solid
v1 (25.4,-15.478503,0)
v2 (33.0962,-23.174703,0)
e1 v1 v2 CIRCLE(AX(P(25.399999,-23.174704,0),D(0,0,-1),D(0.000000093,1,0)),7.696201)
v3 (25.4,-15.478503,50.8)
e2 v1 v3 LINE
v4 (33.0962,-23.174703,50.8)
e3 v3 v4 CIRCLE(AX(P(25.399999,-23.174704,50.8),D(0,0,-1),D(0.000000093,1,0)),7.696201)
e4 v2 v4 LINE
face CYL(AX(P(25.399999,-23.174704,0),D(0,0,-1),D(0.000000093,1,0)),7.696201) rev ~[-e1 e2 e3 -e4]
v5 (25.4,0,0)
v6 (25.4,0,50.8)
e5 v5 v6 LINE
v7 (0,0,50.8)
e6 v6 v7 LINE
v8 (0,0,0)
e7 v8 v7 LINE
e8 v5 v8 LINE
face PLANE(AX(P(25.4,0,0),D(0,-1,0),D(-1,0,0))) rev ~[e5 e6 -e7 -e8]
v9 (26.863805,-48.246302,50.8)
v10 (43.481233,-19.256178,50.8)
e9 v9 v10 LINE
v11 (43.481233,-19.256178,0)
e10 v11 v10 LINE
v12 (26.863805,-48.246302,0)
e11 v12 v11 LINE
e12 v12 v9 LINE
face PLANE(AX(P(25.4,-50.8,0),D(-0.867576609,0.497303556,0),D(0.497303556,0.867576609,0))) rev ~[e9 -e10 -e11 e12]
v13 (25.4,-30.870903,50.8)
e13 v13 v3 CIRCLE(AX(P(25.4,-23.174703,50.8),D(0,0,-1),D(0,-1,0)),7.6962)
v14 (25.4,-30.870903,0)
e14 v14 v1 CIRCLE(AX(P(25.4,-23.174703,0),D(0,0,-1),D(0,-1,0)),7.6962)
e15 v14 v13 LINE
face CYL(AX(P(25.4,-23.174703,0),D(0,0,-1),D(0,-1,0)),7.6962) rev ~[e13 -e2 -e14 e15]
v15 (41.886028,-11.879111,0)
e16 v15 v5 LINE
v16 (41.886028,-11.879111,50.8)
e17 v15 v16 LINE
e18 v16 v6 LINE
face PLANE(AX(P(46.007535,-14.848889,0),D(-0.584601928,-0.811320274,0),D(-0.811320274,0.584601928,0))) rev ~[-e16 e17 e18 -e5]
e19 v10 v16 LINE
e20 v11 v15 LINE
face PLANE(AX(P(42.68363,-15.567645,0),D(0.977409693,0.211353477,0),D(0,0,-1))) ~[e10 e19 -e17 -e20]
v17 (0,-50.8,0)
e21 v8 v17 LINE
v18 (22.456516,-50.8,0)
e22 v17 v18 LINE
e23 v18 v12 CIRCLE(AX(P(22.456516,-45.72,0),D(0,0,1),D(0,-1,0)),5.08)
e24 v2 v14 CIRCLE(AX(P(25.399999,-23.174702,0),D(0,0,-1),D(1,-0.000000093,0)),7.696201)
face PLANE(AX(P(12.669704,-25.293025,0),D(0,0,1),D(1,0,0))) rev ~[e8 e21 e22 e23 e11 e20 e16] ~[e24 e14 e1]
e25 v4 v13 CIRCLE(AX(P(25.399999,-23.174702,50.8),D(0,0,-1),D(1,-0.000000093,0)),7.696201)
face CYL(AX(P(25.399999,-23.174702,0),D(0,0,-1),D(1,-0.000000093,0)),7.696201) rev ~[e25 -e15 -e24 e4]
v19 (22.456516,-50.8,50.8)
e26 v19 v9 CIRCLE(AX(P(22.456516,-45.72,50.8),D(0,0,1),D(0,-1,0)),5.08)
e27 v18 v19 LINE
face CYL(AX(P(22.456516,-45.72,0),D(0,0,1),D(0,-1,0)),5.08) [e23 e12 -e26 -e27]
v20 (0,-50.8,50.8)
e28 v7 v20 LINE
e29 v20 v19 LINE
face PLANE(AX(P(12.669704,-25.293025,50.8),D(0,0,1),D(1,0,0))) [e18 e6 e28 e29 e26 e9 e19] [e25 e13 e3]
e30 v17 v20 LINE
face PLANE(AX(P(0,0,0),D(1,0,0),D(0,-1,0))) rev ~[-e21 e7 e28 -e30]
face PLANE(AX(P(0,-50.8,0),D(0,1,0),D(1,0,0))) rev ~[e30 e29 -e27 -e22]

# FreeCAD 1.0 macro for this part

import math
import FreeCAD as App
import Part
import Sketcher
Q = App.Units.Quantity


def edges_at(feature, points):
    """Names of the edges that pass closest to the given points."""
    edges = feature.Shape.Edges
    near = lambda p: min(range(len(edges)), key=lambda i: edges[i].distToShape(Part.Vertex(*p))[0])
    return sorted({f"Edge{near(p) + 1}" for p in points})


def add_polygon(sketch, points):
    """Adds a closed chain of lines whose ends are joined by coincident constraints."""
    first, n = sketch.GeometryCount, len(points)
    for a, b in zip(points, points[1:] + points[:1]):
        sketch.addGeometry(Part.LineSegment(App.Vector(*a, 0), App.Vector(*b, 0)), False)
    for i in range(n):
        sketch.addConstraint(Sketcher.Constraint("Coincident", first + i, 2, first + (i + 1) % n, 1))

doc = App.newDocument("Part")
body = doc.addObject("PartDesign::Body", "Body")

sketch1 = body.newObject("Sketcher::SketchObject", "Sketch")
sketch1.AttachmentSupport = (doc.getObject("XY_Plane"), [""])
sketch1.MapMode = "FlatFace"
add_polygon(sketch1, [(25.4, 0), (0, 0), (0, -50.8), (25.4, -50.8), (46.007535, -14.848889)])
sketch1.addGeometry(Part.ArcOfCircle(Part.Circle(App.Vector(25.4, -23.174703, 0), App.Vector(0, 0, 1), 7.6962), math.radians(90), math.radians(270)), False)
sketch1.addGeometry(Part.ArcOfCircle(Part.Circle(App.Vector(25.399999, -23.174704, 0), App.Vector(0, 0, 1), 7.696201), math.radians(0.000005), math.radians(89.999995)), False)
sketch1.addGeometry(Part.ArcOfCircle(Part.Circle(App.Vector(25.399999, -23.174702, 0), App.Vector(0, 0, 1), 7.696201), math.radians(-89.999995), math.radians(-0.000005)), False)
sketch1.addConstraint(Sketcher.Constraint("Tangent", 5, 1, 6, 2))
sketch1.addConstraint(Sketcher.Constraint("Tangent", 6, 1, 7, 2))
sketch1.addConstraint(Sketcher.Constraint("Tangent", 7, 1, 5, 2))
sketch1.addConstraint(Sketcher.Constraint("Horizontal", 0))
sketch1.addConstraint(Sketcher.Constraint("Vertical", 1))
sketch1.addConstraint(Sketcher.Constraint("Horizontal", 2))
sketch1.addConstraint(Sketcher.Constraint("Coincident", 0, 2, -1, 1))
sketch1.addConstraint(Sketcher.Constraint("Horizontal", 7, 3, 6, 1))
sketch1.addConstraint(Sketcher.Constraint("Vertical", 7, 3, 2, 2))
sketch1.addConstraint(Sketcher.Constraint("Vertical", 2, 2, 4, 2))
sketch1.addConstraint(Sketcher.Constraint("Vertical", 4, 2, 5, 1))
sketch1.addConstraint(Sketcher.Constraint("Vertical", 5, 1, 7, 1))
sketch1.addConstraint(Sketcher.Constraint("DistanceX", 0, 2, 0, 1, Q("1 in")))
sketch1.addConstraint(Sketcher.Constraint("DistanceY", 1, 2, 1, 1, Q("2 in")))
sketch1.addConstraint(Sketcher.Constraint("Distance", 4, Q("1 in")))
sketch1.addConstraint(Sketcher.Constraint("Radius", 5, Q("0.303 in")))
sketch1.addConstraint(Sketcher.Constraint("DistanceY", 3, 2, -1, 1, Q("14.848889 mm")))
sketch1.addConstraint(Sketcher.Constraint("DistanceY", 5, 3, -1, 1, Q("23.174703 mm")))
pad1 = body.newObject("PartDesign::Pad", "Pad")
pad1.Profile = sketch1
pad1.Length = Q("2 in")
doc.recompute()

fillet = body.newObject("PartDesign::Fillet", "Fillet")
fillet.Base = (pad1, edges_at(pad1, [(25.4, -50.8, 25.4)]))
fillet.Radius = Q("0.2 in")
doc.recompute()

chamfer = body.newObject("PartDesign::Chamfer", "Chamfer")
chamfer.Base = (fillet, edges_at(fillet, [(46.008, -14.849, 25.4)]))
chamfer.Size = Q("0.2 in")

doc.recompute()
